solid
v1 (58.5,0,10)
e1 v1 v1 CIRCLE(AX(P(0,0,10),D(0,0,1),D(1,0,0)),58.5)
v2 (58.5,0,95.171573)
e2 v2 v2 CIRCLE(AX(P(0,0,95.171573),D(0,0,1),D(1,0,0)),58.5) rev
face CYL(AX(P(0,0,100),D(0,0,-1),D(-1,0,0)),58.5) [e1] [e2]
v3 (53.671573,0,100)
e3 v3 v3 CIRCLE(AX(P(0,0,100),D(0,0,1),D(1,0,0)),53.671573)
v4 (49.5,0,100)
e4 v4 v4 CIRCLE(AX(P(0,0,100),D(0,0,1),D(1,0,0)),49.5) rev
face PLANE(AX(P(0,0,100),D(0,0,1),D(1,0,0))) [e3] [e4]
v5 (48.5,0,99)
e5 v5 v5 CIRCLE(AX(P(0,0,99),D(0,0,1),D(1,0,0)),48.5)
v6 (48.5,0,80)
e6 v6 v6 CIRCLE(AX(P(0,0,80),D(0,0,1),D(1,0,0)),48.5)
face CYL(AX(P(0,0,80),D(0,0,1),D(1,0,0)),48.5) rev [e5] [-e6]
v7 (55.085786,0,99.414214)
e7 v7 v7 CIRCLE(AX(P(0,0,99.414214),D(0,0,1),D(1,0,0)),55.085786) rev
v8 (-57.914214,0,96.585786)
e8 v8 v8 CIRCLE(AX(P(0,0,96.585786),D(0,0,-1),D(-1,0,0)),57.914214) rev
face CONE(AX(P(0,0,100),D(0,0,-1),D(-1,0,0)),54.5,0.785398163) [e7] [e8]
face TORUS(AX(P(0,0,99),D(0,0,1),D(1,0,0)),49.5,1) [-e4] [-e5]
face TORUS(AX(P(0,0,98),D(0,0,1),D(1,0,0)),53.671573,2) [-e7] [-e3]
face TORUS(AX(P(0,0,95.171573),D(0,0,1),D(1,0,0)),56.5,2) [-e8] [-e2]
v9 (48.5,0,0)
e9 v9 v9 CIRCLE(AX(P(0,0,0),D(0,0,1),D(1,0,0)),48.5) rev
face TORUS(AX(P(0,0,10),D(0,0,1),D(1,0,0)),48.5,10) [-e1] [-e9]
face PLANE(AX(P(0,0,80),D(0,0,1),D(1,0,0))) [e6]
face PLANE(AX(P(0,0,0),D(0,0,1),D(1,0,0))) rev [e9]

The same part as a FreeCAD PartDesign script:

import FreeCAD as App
import Part
import Sketcher

V = App.Vector
Q = App.Units.Quantity


def edges_at(feature, points):
    """Names of the edges that pass closest to the given points."""
    edges = feature.Shape.Edges
    near = lambda p: min(range(len(edges)), key=lambda i: edges[i].distToShape(Part.Vertex(*p))[0])
    return sorted({f"Edge{near(p) + 1}" for p in points})

doc = App.newDocument("Part")
params = doc.addObject("Spreadsheet::Sheet", "Params")
for row, (alias, value) in enumerate([
    ("sketch1_diameter", "117 mm"),
    ("pad1_length", "100 mm"),
    ("sketch2_diameter", "97 mm"),
    ("pocket1_length", "20 mm"),
    ("fillet_radius", "1 mm"),
    ("chamfer_size", "4 mm"),
    ("fillet2_radius", "2 mm"),
    ("fillet3_radius", "10 mm"),
], start=1):
    params.set(f"A{row}", alias)
    params.set(f"B{row}", "=" + value)
    params.setAlias(f"B{row}", alias)

body = doc.addObject("PartDesign::Body", "Body")

sketch1 = body.newObject("Sketcher::SketchObject", "Sketch")
sketch1.AttachmentSupport = (doc.getObject("XY_Plane"), [""])
sketch1.MapMode = "FlatFace"
sketch1.addGeometry(Part.Circle(V(0, 0, 0), V(0, 0, 1), 58.5), False)
sketch1.addConstraint([
    Sketcher.Constraint("Coincident", 0, 3, -1, 1),
    Sketcher.Constraint("Diameter", 0, Q("117 mm")),
])
sketch1.setExpression("Constraints[1]", "Params.sketch1_diameter")
pad1 = body.newObject("PartDesign::Pad", "Pad")
pad1.Profile = sketch1
pad1.setExpression("Length", "Params.pad1_length")

sketch2 = body.newObject("Sketcher::SketchObject", "Sketch001")
sketch2.AttachmentSupport = (doc.getObject("XY_Plane"), [""])
sketch2.MapMode = "FlatFace"
sketch2.AttachmentOffset = App.Placement(V(0, 0, 100), App.Rotation())
sketch2.addGeometry(Part.Circle(V(0, 0, 0), V(0, 0, 1), 48.5), False)
sketch2.addConstraint([
    Sketcher.Constraint("Coincident", 0, 3, -1, 1),
    Sketcher.Constraint("Diameter", 0, Q("97 mm")),
])
sketch2.setExpression("Constraints[1]", "Params.sketch2_diameter")
pocket1 = body.newObject("PartDesign::Pocket", "Pocket")
pocket1.Profile = sketch2
pocket1.setExpression("Length", "Params.pocket1_length")
doc.recompute()

fillet = body.newObject("PartDesign::Fillet", "Fillet")
fillet.Base = (pocket1, edges_at(pocket1, [(-48.5, 0, 100)]))
fillet.setExpression("Radius", "Params.fillet_radius")
doc.recompute()

chamfer = body.newObject("PartDesign::Chamfer", "Chamfer")
chamfer.Base = (fillet, edges_at(fillet, [(-58.5, 0, 100)]))
chamfer.setExpression("Size", "Params.chamfer_size")
doc.recompute()

fillet2 = body.newObject("PartDesign::Fillet", "Fillet001")
fillet2.Base = (chamfer, edges_at(chamfer, [(-54.5, 0, 100), (-58.5, 0, 96)]))
fillet2.setExpression("Radius", "Params.fillet2_radius")
doc.recompute()

fillet3 = body.newObject("PartDesign::Fillet", "Fillet002")
fillet3.Base = (fillet2, edges_at(fillet2, [(-58.5, 0, 0)]))
fillet3.setExpression("Radius", "Params.fillet3_radius")

doc.recompute()
